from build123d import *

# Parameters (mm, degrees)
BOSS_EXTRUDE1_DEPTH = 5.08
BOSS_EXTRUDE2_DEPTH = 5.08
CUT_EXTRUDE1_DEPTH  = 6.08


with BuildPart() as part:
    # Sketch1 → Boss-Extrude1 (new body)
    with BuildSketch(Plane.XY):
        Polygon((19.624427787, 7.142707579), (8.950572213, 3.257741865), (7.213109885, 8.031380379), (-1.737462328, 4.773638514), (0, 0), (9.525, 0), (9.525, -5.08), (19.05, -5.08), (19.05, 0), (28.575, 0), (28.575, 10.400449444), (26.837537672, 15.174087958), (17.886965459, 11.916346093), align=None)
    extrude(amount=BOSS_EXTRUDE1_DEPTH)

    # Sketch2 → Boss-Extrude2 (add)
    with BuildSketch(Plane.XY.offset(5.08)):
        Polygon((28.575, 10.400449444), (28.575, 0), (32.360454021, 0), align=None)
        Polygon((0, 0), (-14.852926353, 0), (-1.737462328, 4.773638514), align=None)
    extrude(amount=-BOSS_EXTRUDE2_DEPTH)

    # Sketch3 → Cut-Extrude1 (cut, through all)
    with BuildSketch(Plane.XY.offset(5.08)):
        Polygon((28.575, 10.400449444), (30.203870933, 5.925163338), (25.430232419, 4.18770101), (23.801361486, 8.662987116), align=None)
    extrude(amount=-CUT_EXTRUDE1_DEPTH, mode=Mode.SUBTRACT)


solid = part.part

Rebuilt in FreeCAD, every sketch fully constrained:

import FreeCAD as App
import Part
import Sketcher

V = App.Vector
Q = App.Units.Quantity

doc = App.newDocument("Part")
body = doc.addObject("PartDesign::Body", "Body")

sketch1 = body.newObject("Sketcher::SketchObject", "Sketch")
sketch1.AttachmentSupport = (doc.getObject("XY_Plane"), [""])
sketch1.MapMode = "FlatFace"
sketch1.addGeometry([
    Part.LineSegment(V(19.624428, 7.142708, 0), V(8.950572, 3.257742, 0)),
    Part.LineSegment(V(8.950572, 3.257742, 0), V(7.21311, 8.03138, 0)),
    Part.LineSegment(V(7.21311, 8.03138, 0), V(-1.737462, 4.773639, 0)),
    Part.LineSegment(V(-1.737462, 4.773639, 0), V(0, 0, 0)),
    Part.LineSegment(V(0, 0, 0), V(9.525, 0, 0)),
    Part.LineSegment(V(9.525, 0, 0), V(9.525, -5.08, 0)),
    Part.LineSegment(V(9.525, -5.08, 0), V(19.05, -5.08, 0)),
    Part.LineSegment(V(19.05, -5.08, 0), V(19.05, 0, 0)),
    Part.LineSegment(V(19.05, 0, 0), V(28.575, 0, 0)),
    Part.LineSegment(V(28.575, 0, 0), V(28.575, 10.400449, 0)),
    Part.LineSegment(V(28.575, 10.400449, 0), V(26.837538, 15.174088, 0)),
    Part.LineSegment(V(26.837538, 15.174088, 0), V(17.886965, 11.916346, 0)),
    Part.LineSegment(V(17.886965, 11.916346, 0), V(19.624428, 7.142708, 0)),
], False)
sketch1.addConstraint([
    Sketcher.Constraint("Coincident", 0, 2, 1, 1),
    Sketcher.Constraint("Coincident", 1, 2, 2, 1),
    Sketcher.Constraint("Coincident", 2, 2, 3, 1),
    Sketcher.Constraint("Coincident", 3, 2, 4, 1),
    Sketcher.Constraint("Coincident", 4, 2, 5, 1),
    Sketcher.Constraint("Coincident", 5, 2, 6, 1),
    Sketcher.Constraint("Coincident", 6, 2, 7, 1),
    Sketcher.Constraint("Coincident", 7, 2, 8, 1),
    Sketcher.Constraint("Coincident", 8, 2, 9, 1),
    Sketcher.Constraint("Coincident", 9, 2, 10, 1),
    Sketcher.Constraint("Coincident", 10, 2, 11, 1),
    Sketcher.Constraint("Coincident", 11, 2, 12, 1),
    Sketcher.Constraint("Coincident", 12, 2, 0, 1),
    Sketcher.Constraint("Horizontal", 4),
    Sketcher.Constraint("Vertical", 5),
    Sketcher.Constraint("Horizontal", 6),
    Sketcher.Constraint("Vertical", 7),
    Sketcher.Constraint("Horizontal", 8),
    Sketcher.Constraint("Vertical", 9),
    Sketcher.Constraint("Coincident", 3, 2, -1, 1),
    Sketcher.Constraint("PointOnObject", 7, 2, -1),
    Sketcher.Constraint("Perpendicular", 0, 1),
    Sketcher.Constraint("Perpendicular", 1, 2),
    Sketcher.Constraint("Perpendicular", 2, 3),
    Sketcher.Constraint("Parallel", 3, 10),
    Sketcher.Constraint("Perpendicular", 10, 11),
    Sketcher.Constraint("Perpendicular", 11, 12),
    Sketcher.Constraint("Equal", 4, 6),
    Sketcher.Constraint("Equal", 6, 8),
    Sketcher.Constraint("Equal", 1, 3),
    Sketcher.Constraint("Equal", 3, 10),
    Sketcher.Constraint("Equal", 2, 11),
    Sketcher.Constraint("Equal", 10, 12),
    Sketcher.Constraint("DistanceY", 5, 2, 5, 1, Q("0.2 in")),
    Sketcher.Constraint("Angle", 0, Q("-160 deg")),
    Sketcher.Constraint("Distance", 1, Q("0.2 in")),
    Sketcher.Constraint("DistanceX", 4, 1, 4, 2, Q("0.375 in")),
    Sketcher.Constraint("Distance", 2, Q("0.375 in")),
])
pad1 = body.newObject("PartDesign::Pad", "Pad")
pad1.Profile = sketch1
pad1.Length = Q("0.2 in")

sketch2 = body.newObject("Sketcher::SketchObject", "Sketch001")
sketch2.AttachmentSupport = (doc.getObject("XY_Plane"), [""])
sketch2.MapMode = "FlatFace"
sketch2.AttachmentOffset = App.Placement(V(0, 0, 0.2 * 25.4), App.Rotation())
sketch2.addGeometry([
    Part.LineSegment(V(28.575, 10.400449, 0), V(28.575, 0, 0)),
    Part.LineSegment(V(28.575, 0, 0), V(32.360454, 0, 0)),
    Part.LineSegment(V(32.360454, 0, 0), V(28.575, 10.400449, 0)),
    Part.LineSegment(V(-14.852926, 0, 0), V(0, 0, 0)),
    Part.LineSegment(V(0, 0, 0), V(-1.737462, 4.773639, 0)),
    Part.LineSegment(V(-1.737462, 4.773639, 0), V(-14.852926, 0, 0)),
], False)
sketch2.addConstraint([
    Sketcher.Constraint("Coincident", 0, 2, 1, 1),
    Sketcher.Constraint("Coincident", 1, 2, 2, 1),
    Sketcher.Constraint("Coincident", 2, 2, 0, 1),
    Sketcher.Constraint("Coincident", 3, 2, 4, 1),
    Sketcher.Constraint("Coincident", 4, 2, 5, 1),
    Sketcher.Constraint("Coincident", 5, 2, 3, 1),
    Sketcher.Constraint("Vertical", 0),
    Sketcher.Constraint("Horizontal", 1),
    Sketcher.Constraint("Horizontal", 3),
    Sketcher.Constraint("Coincident", 3, 2, -1, 1),
    Sketcher.Constraint("PointOnObject", 0, 2, -1),
    Sketcher.Constraint("Parallel", 2, 4),
    Sketcher.Constraint("Perpendicular", 4, 5),
    Sketcher.Constraint("Angle", 2, Q("110 deg")),
    Sketcher.Constraint("Distance", 4, Q("0.2 in")),
    Sketcher.Constraint("DistanceX", -1, 1, 0, 2, Q("1.125 in")),
    Sketcher.Constraint("DistanceY", 0, 2, 0, 1, 10.400449),
])
pad2 = body.newObject("PartDesign::Pad", "Pad001")
pad2.Profile = sketch2
pad2.Length = Q("0.2 in")
pad2.Reversed = True

sketch3 = body.newObject("Sketcher::SketchObject", "Sketch002")
sketch3.AttachmentSupport = (doc.getObject("XY_Plane"), [""])
sketch3.MapMode = "FlatFace"
sketch3.AttachmentOffset = App.Placement(V(0, 0, 0.2 * 25.4), App.Rotation())
sketch3.addGeometry([
    Part.LineSegment(V(30.203871, 5.925163, 0), V(28.575, 10.400449, 0)),
    Part.LineSegment(V(28.575, 10.400449, 0), V(23.801361, 8.662987, 0)),
    Part.LineSegment(V(23.801361, 8.662987, 0), V(25.430232, 4.187701, 0)),
    Part.LineSegment(V(25.430232, 4.187701, 0), V(30.203871, 5.925163, 0)),
], False)
sketch3.addConstraint([
    Sketcher.Constraint("Coincident", 0, 2, 1, 1),
    Sketcher.Constraint("Coincident", 1, 2, 2, 1),
    Sketcher.Constraint("Coincident", 2, 2, 3, 1),
    Sketcher.Constraint("Coincident", 3, 2, 0, 1),
    Sketcher.Constraint("Perpendicular", 0, 1),
    Sketcher.Constraint("Perpendicular", 1, 2),
    Sketcher.Constraint("Perpendicular", 2, 3),
    Sketcher.Constraint("Angle", 0, Q("110 deg")),
    Sketcher.Constraint("Distance", 1, Q("0.2 in")),
    Sketcher.Constraint("Distance", 0, Q("0.1875 in")),
    Sketcher.Constraint("DistanceX", -1, 1, 0, 2, Q("1.125 in")),
    Sketcher.Constraint("DistanceY", -1, 1, 2, 2, 4.187701),
])
pocket1 = body.newObject("PartDesign::Pocket", "Pocket")
pocket1.Profile = sketch3
pocket1.Type = "ThroughAll"

doc.recompute()
